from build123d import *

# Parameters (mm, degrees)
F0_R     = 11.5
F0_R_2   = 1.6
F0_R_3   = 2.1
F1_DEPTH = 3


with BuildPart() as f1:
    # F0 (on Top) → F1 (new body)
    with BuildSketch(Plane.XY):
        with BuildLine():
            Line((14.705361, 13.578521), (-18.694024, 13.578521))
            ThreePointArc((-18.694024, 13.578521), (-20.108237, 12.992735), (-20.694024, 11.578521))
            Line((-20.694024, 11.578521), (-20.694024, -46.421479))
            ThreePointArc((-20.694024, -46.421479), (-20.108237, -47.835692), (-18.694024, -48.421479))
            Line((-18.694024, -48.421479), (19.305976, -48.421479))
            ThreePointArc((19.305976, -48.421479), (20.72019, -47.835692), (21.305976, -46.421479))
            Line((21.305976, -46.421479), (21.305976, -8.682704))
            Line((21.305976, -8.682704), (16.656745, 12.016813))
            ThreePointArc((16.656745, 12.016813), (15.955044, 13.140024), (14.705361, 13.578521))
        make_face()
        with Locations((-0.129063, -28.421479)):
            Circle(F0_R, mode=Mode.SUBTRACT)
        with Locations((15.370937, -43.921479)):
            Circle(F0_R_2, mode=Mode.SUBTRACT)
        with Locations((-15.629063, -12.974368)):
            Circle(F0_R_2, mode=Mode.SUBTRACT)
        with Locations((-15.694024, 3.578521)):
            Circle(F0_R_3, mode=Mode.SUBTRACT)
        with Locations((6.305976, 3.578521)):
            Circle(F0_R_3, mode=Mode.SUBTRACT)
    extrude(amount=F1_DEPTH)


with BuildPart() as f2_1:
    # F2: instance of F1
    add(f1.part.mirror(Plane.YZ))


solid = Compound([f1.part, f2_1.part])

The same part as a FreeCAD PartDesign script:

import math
import FreeCAD as App
import Part
import Sketcher

V = App.Vector

doc = App.newDocument("Part")
body = doc.addObject("PartDesign::Body", "Body")

# Sketch on XY plane
sketch1 = body.newObject("Sketcher::SketchObject", "Sketch")
sketch1.AttachmentSupport = (doc.getObject("XY_Plane"), [""])
sketch1.MapMode = "FlatFace"
sketch1.addGeometry(Part.LineSegment(V(14.7, 13.6, 0), V(-18.7, 13.6, 0)), False)
sketch1.addGeometry(Part.ArcOfCircle(Part.Circle(V(-18.7, 11.6, 0), V(0, 0, 1), 2), math.radians(90), math.radians(180)), False)
sketch1.addGeometry(Part.LineSegment(V(-20.7, 11.6, 0), V(-20.7, -46.4, 0)), False)
sketch1.addGeometry(Part.ArcOfCircle(Part.Circle(V(-18.7, -46.4, 0), V(0, 0, 1), 2), math.radians(-180), math.radians(-90)), False)
sketch1.addGeometry(Part.LineSegment(V(-18.7, -48.4, 0), V(19.3, -48.4, 0)), False)
sketch1.addGeometry(Part.ArcOfCircle(Part.Circle(V(19.3, -46.4, 0), V(0, 0, 1), 2), math.radians(-90), math.radians(0)), False)
sketch1.addGeometry(Part.LineSegment(V(21.3, -46.4, 0), V(21.3, -8.7, 0)), False)
sketch1.addGeometry(Part.LineSegment(V(21.3, -8.7, 0), V(16.7, 12, 0)), False)
sketch1.addGeometry(Part.ArcOfCircle(Part.Circle(V(14.7, 11.6, 0), V(0, 0, 1), 2), math.radians(13), math.radians(90)), False)
sketch1.addGeometry(Part.Circle(V(15.4, -43.9, 0), V(0, 0, 1), 1.6), False)
sketch1.addGeometry(Part.Circle(V(-0.1, -28.4, 0), V(0, 0, 1), 11.5), False)
sketch1.addGeometry(Part.Circle(V(-15.6, -13, 0), V(0, 0, 1), 1.6), False)
sketch1.addGeometry(Part.Circle(V(-15.7, 3.6, 0), V(0, 0, 1), 2.1), False)
sketch1.addGeometry(Part.Circle(V(6.3, 3.6, 0), V(0, 0, 1), 2.1), False)
sketch1.addConstraint(Sketcher.Constraint("Tangent", 0, 2, 1, 1))
sketch1.addConstraint(Sketcher.Constraint("Tangent", 1, 2, 2, 1))
sketch1.addConstraint(Sketcher.Constraint("Tangent", 2, 2, 3, 1))
sketch1.addConstraint(Sketcher.Constraint("Tangent", 3, 2, 4, 1))
sketch1.addConstraint(Sketcher.Constraint("Tangent", 4, 2, 5, 1))
sketch1.addConstraint(Sketcher.Constraint("Tangent", 5, 2, 6, 1))
sketch1.addConstraint(Sketcher.Constraint("Coincident", 6, 2, 7, 1))
sketch1.addConstraint(Sketcher.Constraint("Tangent", 7, 2, 8, 1))
sketch1.addConstraint(Sketcher.Constraint("Tangent", 8, 2, 0, 1))
sketch1.addConstraint(Sketcher.Constraint("Horizontal", 0))
sketch1.addConstraint(Sketcher.Constraint("Vertical", 2))
sketch1.addConstraint(Sketcher.Constraint("Horizontal", 4))
sketch1.addConstraint(Sketcher.Constraint("Vertical", 6))
sketch1.addConstraint(Sketcher.Constraint("Equal", 1, 3))
sketch1.addConstraint(Sketcher.Constraint("Equal", 3, 5))
sketch1.addConstraint(Sketcher.Constraint("Equal", 5, 8))
sketch1.addConstraint(Sketcher.Constraint("Equal", 9, 11))
sketch1.addConstraint(Sketcher.Constraint("Equal", 12, 13))
sketch1.addConstraint(Sketcher.Constraint("Horizontal", 12, 3, 13, 3))
sketch1.addConstraint(Sketcher.Constraint("Diameter", 10, 23.0))
sketch1.addConstraint(Sketcher.Constraint("Radius", 1, 2.0))
sketch1.addConstraint(Sketcher.Constraint("Diameter", 9, 3.2))
sketch1.addConstraint(Sketcher.Constraint("Diameter", 12, 4.2))
sketch1.addConstraint(Sketcher.Constraint("DistanceX", 4, 1, 4, 2, 38.0))
sketch1.addConstraint(Sketcher.Constraint("DistanceY", 2, 2, 2, 1, 58.0))
sketch1.addConstraint(Sketcher.Constraint("DistanceY", 3, 3, 10, 3, 17.999998))
sketch1.addConstraint(Sketcher.Constraint("DistanceX", 11, 3, 9, 3, 31.0))
sketch1.addConstraint(Sketcher.Constraint("DistanceX", 1, 3, 12, 3, 3.0))
sketch1.addConstraint(Sketcher.Constraint("DistanceY", 12, 3, 1, 3, 8.0))
sketch1.addConstraint(Sketcher.Constraint("DistanceX", 12, 3, 13, 3, 22.0))
sketch1.addConstraint(Sketcher.Constraint("DistanceY", 5, 3, 9, 3, 2.5))
sketch1.addConstraint(Sketcher.Constraint("DistanceX", 10, 3, 9, 3, 15.5))
sketch1.addConstraint(Sketcher.Constraint("DistanceX", 0, 2, 0, 1, 33.399385))
sketch1.addConstraint(Sketcher.Constraint("DistanceY", 6, 1, 6, 2, 37.738775))
sketch1.addConstraint(Sketcher.Constraint("DistanceY", -1, 1, 1, 3, 11.578521))
sketch1.addConstraint(Sketcher.Constraint("DistanceX", -1, 1, 8, 3, 14.705361))
sketch1.addConstraint(Sketcher.Constraint("DistanceX", 9, 3, 5, 3, 3.935039))
sketch1.addConstraint(Sketcher.Constraint("DistanceY", 10, 3, 11, 3, 15.447111))
pad1 = body.newObject("PartDesign::Pad", "Pad")
pad1.Profile = sketch1
pad1.Length = 3
body2 = doc.addObject("PartDesign::Body", "Body001")
doc.recompute()

mirroring = doc.addObject("Part::Mirroring", "Mirroring")
mirroring.Source = body
mirroring.Base = V(0, 0, 0)
mirroring.Normal = V(1, 0, 0)
body2.BaseFeature = mirroring
doc.recompute()
mirroring.Visibility = False

doc.recompute()
